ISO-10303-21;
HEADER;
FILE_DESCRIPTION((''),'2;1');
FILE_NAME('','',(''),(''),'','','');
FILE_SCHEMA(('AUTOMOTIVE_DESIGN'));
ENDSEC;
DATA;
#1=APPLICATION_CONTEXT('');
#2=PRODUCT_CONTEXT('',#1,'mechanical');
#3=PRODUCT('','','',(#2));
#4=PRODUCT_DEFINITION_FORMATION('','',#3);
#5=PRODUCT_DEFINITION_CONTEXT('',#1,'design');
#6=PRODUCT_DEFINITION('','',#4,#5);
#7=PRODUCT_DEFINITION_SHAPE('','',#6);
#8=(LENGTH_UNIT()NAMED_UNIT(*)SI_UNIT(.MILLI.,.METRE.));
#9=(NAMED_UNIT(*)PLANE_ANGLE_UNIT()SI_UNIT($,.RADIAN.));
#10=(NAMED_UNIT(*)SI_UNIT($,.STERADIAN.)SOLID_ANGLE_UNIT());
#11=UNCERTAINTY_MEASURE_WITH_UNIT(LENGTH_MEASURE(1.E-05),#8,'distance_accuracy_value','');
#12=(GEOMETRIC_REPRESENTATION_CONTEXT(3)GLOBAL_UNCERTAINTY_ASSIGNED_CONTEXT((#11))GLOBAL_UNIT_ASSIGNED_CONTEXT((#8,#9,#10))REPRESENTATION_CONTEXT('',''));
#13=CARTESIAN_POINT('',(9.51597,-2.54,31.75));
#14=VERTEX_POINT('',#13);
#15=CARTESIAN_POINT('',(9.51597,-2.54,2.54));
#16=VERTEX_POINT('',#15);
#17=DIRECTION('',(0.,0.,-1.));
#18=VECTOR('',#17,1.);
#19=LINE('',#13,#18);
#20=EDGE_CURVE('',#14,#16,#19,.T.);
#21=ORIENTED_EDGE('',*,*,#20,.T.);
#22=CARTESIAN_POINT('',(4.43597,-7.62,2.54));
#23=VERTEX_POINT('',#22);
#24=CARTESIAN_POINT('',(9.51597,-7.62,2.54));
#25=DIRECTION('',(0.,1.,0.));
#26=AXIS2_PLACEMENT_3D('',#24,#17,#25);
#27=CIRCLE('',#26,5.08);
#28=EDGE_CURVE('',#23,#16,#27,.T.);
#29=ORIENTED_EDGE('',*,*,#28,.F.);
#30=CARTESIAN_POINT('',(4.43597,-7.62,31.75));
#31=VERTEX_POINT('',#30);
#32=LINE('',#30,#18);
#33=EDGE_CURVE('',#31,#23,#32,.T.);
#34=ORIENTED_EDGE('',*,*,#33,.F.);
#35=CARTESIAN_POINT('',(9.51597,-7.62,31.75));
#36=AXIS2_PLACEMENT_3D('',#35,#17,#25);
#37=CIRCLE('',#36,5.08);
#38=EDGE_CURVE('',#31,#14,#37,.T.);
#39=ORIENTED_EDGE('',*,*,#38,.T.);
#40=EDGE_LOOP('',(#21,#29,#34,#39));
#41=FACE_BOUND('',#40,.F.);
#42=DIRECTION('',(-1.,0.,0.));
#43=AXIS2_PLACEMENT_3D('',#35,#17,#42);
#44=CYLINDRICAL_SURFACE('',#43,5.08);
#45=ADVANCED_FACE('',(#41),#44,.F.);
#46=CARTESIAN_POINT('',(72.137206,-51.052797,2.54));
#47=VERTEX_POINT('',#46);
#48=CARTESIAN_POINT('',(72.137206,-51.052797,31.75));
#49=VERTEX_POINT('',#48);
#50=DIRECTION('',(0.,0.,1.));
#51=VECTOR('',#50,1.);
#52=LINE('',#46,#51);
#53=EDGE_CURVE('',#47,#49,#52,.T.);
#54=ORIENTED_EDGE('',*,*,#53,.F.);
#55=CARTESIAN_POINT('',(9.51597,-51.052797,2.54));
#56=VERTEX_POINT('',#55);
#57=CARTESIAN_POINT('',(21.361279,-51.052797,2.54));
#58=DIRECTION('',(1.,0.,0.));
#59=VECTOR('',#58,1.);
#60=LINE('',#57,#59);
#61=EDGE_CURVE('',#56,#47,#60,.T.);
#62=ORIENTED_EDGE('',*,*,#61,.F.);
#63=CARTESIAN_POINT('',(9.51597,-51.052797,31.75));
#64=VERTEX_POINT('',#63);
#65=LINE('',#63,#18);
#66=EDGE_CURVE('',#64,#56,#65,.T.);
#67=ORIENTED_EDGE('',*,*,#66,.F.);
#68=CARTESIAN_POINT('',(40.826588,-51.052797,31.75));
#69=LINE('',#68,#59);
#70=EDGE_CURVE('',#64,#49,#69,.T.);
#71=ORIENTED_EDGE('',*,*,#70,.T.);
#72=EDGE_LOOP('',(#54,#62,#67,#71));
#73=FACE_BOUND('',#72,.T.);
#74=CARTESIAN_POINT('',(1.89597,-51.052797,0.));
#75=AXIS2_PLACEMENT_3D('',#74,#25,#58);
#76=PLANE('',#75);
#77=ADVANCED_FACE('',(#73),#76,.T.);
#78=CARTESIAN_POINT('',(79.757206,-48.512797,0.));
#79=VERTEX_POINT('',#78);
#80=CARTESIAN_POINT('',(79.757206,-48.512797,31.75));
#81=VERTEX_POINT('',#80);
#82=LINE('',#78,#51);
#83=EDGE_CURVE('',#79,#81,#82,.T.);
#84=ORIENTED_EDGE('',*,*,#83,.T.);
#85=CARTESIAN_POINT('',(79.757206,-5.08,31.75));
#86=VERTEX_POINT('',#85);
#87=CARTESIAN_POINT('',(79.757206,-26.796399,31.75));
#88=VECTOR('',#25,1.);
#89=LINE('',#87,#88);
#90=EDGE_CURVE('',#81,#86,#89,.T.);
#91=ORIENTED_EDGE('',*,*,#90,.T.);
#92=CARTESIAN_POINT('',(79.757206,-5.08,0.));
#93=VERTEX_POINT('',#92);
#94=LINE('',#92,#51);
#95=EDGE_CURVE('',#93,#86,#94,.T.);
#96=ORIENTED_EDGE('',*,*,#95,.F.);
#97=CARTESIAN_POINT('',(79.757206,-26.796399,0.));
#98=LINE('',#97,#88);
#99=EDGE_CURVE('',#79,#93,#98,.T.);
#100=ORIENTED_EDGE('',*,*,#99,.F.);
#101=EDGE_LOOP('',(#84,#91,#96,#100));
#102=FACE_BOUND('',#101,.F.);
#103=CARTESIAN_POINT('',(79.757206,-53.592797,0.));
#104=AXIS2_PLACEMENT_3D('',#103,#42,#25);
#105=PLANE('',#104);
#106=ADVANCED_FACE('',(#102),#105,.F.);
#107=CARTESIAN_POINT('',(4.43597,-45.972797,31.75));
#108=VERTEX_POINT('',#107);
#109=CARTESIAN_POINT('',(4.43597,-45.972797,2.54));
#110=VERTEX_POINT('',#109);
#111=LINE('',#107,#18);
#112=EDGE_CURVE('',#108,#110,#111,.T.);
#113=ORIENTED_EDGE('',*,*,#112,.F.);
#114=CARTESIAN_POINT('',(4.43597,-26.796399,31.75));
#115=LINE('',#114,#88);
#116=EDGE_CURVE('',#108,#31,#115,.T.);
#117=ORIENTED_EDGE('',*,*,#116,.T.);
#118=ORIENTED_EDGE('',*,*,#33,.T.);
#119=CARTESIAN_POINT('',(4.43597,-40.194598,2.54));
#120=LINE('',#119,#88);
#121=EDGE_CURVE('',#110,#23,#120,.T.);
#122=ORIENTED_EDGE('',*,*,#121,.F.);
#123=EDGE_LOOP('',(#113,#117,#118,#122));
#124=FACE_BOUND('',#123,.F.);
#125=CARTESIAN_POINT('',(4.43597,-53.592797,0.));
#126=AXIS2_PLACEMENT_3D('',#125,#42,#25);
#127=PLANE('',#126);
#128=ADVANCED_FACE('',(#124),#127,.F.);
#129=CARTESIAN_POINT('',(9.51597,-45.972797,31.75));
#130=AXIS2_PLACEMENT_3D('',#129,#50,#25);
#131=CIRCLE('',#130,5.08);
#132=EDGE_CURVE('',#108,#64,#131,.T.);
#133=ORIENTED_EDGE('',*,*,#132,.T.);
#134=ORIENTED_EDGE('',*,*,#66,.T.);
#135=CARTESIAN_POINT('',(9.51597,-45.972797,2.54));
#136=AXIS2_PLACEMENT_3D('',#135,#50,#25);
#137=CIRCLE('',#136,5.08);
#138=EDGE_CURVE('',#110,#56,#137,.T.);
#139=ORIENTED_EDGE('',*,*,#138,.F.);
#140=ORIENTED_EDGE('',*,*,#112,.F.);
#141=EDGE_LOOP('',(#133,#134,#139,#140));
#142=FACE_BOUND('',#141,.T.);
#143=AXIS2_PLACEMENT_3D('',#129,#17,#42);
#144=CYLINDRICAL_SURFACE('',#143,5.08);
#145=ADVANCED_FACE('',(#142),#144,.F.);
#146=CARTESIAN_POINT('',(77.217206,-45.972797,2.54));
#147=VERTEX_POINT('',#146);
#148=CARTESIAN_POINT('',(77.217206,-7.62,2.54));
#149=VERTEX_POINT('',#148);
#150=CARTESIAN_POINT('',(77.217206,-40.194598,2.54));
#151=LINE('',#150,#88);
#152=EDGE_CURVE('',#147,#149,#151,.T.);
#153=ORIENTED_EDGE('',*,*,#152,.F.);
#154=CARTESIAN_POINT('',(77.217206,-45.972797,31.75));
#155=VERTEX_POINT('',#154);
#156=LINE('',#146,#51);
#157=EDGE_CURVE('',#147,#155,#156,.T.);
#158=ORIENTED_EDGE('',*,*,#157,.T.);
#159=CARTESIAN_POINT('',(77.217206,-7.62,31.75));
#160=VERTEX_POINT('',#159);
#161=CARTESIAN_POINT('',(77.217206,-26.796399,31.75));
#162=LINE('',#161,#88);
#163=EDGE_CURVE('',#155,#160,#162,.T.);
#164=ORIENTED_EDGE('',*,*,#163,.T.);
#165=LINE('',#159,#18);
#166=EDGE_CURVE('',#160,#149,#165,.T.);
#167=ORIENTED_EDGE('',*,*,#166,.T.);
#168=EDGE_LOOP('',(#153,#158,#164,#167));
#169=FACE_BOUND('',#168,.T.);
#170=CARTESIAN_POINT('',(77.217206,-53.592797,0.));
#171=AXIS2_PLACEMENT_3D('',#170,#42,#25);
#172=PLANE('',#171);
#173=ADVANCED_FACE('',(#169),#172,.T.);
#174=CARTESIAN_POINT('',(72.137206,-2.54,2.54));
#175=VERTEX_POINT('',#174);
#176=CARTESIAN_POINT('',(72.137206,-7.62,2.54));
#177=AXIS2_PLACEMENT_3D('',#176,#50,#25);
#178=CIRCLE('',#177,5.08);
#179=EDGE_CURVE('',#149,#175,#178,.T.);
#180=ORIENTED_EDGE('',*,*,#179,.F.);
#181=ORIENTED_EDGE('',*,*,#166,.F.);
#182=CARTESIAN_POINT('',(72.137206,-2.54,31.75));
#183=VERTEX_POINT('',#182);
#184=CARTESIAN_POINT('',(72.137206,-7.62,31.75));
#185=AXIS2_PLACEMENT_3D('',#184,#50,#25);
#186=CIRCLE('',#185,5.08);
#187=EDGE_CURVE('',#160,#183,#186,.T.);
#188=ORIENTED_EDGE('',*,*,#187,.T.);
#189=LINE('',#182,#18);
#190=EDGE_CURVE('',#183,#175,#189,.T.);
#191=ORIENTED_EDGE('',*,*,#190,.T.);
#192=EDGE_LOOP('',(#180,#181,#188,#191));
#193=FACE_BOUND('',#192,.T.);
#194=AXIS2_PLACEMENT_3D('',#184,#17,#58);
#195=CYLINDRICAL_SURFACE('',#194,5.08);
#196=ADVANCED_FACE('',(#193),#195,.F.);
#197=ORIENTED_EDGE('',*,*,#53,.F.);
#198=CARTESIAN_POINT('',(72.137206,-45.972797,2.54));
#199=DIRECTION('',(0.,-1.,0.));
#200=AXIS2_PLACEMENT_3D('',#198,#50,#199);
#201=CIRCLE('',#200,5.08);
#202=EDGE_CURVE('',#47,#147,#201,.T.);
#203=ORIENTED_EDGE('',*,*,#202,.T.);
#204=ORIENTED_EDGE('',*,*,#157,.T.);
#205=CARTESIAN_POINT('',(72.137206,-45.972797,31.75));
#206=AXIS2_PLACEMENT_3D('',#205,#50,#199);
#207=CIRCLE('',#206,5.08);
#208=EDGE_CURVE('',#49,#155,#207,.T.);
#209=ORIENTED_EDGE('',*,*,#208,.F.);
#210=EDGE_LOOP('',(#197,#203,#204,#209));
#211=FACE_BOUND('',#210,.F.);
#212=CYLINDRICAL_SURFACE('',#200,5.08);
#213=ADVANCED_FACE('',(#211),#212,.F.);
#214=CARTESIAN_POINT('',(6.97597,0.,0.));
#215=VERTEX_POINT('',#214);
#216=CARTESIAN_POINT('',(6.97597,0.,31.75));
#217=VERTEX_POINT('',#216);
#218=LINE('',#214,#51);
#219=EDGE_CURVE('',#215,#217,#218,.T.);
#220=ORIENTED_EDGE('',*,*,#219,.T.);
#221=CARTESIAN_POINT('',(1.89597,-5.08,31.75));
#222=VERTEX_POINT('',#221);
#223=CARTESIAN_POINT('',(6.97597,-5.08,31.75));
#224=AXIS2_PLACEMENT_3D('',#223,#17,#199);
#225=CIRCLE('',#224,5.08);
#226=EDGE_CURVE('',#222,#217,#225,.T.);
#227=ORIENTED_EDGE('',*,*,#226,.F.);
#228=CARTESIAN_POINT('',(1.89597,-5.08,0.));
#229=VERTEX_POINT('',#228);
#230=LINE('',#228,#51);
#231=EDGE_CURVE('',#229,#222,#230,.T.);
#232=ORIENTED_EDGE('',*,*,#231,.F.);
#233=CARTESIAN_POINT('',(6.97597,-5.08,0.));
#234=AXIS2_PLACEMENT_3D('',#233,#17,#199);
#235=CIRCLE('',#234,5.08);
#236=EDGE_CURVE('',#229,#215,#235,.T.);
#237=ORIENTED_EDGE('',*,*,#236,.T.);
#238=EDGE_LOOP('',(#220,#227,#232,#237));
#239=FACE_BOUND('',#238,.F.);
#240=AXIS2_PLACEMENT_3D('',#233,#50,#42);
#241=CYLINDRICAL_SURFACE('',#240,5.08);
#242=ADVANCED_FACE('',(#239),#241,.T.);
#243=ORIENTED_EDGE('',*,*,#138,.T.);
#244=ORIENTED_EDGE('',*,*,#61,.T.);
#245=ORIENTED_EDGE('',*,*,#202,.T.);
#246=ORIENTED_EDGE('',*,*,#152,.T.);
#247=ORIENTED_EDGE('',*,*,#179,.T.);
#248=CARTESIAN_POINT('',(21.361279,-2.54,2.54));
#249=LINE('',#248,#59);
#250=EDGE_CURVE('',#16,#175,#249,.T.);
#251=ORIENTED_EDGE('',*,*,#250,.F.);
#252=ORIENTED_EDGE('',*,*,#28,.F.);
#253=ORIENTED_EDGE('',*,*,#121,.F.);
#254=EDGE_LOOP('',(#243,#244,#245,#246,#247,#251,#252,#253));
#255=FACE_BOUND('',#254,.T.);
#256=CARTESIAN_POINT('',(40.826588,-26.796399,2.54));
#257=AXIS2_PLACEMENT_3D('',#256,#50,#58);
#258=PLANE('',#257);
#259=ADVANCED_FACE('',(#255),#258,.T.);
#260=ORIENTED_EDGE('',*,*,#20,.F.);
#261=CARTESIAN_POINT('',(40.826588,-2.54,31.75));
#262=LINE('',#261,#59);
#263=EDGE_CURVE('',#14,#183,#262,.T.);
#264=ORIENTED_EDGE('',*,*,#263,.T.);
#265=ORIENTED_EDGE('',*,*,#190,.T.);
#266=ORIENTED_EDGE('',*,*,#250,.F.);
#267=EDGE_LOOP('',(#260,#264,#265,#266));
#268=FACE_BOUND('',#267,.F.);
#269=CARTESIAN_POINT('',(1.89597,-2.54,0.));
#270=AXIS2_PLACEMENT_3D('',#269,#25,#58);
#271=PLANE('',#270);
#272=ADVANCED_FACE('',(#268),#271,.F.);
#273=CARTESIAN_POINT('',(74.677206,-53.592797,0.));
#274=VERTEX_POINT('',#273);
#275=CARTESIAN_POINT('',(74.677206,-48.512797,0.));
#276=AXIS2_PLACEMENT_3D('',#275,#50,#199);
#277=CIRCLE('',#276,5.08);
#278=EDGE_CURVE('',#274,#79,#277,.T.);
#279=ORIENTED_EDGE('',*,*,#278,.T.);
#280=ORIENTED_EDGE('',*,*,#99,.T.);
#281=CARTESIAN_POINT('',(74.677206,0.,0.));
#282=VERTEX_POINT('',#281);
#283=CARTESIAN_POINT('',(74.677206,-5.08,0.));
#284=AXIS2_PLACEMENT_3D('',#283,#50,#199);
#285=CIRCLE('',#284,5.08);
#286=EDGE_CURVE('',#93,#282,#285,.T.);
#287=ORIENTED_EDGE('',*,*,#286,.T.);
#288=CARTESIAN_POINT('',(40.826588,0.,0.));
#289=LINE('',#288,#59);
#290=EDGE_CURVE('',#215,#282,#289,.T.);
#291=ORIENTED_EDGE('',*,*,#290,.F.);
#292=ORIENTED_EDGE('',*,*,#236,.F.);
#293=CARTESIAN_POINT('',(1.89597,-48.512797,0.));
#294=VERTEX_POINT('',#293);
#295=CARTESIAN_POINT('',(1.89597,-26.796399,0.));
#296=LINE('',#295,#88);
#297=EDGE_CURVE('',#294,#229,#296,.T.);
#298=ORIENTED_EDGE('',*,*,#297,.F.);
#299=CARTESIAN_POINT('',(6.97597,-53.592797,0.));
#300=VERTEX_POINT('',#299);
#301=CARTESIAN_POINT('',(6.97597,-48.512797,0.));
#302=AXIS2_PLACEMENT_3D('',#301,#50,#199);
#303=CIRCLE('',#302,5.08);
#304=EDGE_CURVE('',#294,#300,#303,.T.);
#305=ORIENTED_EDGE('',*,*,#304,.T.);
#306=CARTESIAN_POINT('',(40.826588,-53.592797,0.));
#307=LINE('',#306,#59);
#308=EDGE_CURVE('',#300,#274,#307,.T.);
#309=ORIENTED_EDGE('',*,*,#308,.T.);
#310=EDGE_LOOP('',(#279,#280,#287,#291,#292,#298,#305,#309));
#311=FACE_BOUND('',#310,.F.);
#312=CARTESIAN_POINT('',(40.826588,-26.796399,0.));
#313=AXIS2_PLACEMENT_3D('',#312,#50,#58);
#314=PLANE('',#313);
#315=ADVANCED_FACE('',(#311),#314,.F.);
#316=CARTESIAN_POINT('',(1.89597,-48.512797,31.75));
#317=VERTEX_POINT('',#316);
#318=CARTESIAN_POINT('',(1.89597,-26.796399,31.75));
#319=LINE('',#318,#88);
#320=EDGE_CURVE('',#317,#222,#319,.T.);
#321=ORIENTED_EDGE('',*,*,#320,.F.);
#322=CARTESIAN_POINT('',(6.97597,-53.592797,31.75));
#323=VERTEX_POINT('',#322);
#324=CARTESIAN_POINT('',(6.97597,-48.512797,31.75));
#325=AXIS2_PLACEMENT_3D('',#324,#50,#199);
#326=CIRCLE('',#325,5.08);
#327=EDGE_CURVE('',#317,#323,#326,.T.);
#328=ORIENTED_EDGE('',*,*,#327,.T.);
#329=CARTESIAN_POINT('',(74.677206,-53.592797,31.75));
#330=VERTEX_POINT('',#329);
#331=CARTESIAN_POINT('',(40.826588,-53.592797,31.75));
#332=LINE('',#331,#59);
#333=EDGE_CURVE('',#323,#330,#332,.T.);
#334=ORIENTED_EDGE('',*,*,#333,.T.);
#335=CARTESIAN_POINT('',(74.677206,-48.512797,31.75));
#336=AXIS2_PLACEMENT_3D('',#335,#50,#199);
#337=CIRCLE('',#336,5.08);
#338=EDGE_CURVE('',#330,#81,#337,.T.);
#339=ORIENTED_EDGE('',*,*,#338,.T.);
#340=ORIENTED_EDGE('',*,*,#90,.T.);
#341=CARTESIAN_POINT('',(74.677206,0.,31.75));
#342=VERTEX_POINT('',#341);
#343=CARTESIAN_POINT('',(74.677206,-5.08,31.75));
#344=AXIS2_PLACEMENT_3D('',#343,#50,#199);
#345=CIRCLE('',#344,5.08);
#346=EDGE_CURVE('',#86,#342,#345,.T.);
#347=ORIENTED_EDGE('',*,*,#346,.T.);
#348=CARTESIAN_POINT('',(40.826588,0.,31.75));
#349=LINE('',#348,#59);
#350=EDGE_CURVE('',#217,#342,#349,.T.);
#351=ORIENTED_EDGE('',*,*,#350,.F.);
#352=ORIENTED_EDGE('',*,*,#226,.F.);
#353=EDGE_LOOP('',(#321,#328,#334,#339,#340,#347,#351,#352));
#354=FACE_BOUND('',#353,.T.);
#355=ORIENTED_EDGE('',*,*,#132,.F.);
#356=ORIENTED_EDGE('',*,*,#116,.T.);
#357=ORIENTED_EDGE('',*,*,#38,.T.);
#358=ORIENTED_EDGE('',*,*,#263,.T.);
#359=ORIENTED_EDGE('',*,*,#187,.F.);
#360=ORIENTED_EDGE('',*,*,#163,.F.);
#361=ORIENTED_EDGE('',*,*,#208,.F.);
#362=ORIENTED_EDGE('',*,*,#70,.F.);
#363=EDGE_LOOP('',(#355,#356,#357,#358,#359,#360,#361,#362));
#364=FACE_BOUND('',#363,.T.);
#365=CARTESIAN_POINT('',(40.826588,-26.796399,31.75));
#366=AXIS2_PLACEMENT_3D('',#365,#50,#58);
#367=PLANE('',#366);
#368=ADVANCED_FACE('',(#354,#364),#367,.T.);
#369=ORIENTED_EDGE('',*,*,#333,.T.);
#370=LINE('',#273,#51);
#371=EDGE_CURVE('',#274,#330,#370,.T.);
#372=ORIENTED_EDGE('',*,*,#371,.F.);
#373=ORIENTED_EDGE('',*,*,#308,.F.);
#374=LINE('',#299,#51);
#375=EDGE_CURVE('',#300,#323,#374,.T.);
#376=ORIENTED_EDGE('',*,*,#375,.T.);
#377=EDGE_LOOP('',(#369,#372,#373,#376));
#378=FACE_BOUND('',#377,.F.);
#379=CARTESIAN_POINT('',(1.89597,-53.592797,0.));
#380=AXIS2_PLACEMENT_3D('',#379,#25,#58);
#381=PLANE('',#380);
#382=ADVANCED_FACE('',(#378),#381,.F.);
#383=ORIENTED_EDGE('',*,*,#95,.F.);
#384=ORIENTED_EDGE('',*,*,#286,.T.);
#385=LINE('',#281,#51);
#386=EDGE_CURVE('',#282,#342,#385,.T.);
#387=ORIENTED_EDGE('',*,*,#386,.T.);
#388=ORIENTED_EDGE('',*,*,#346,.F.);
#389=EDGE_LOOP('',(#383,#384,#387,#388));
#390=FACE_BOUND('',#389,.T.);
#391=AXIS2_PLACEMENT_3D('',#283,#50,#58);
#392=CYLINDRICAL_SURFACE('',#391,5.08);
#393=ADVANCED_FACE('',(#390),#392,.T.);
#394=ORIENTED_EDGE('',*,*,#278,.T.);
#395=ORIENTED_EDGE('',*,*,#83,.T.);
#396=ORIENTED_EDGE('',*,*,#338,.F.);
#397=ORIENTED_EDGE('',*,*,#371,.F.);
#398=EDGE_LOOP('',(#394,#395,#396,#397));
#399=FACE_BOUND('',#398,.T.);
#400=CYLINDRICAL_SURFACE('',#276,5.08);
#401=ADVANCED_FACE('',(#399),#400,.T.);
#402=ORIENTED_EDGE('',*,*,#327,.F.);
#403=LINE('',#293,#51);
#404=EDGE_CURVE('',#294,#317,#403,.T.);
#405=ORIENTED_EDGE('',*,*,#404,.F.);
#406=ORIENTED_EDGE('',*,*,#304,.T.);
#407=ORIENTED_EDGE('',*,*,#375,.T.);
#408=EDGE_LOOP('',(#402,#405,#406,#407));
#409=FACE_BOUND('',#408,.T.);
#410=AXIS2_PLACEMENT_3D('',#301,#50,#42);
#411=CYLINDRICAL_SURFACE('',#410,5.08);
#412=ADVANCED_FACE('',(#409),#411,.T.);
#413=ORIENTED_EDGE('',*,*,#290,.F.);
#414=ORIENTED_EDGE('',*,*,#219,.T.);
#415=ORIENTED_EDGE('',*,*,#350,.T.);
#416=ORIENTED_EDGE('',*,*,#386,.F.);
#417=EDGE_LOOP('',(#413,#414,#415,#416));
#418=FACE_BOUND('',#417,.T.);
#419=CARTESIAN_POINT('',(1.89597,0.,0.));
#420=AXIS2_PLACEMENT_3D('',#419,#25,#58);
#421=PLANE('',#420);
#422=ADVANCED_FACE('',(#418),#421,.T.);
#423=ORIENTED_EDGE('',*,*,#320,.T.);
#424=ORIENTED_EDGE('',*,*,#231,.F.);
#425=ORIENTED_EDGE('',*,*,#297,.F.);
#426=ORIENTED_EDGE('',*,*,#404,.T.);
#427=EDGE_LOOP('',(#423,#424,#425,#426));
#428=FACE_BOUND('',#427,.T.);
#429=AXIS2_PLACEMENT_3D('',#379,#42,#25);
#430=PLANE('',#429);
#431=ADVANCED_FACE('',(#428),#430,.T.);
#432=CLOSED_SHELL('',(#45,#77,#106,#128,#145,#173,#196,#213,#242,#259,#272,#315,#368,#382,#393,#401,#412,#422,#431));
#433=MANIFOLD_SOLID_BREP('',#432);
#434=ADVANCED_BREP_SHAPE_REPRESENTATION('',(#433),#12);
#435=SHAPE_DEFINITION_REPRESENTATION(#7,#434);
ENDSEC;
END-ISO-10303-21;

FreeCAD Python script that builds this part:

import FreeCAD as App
import Part
import Sketcher
Q = App.Units.Quantity


def edges_at(feature, points):
    """Names of the edges that pass closest to the given points."""
    edges = feature.Shape.Edges
    near = lambda p: min(range(len(edges)), key=lambda i: edges[i].distToShape(Part.Vertex(*p))[0])
    return sorted({f"Edge{near(p) + 1}" for p in points})


def faces_at(feature, points):
    """Names of the faces that lie closest to the given points."""
    faces = feature.Shape.Faces
    near = lambda p: min(range(len(faces)), key=lambda i: faces[i].distToShape(Part.Vertex(*p))[0])
    return sorted({f"Face{near(p) + 1}" for p in points})

doc = App.newDocument("Part")
body = doc.addObject("PartDesign::Body", "Body")

# Sketch on XY plane
sketch1 = body.newObject("Sketcher::SketchObject", "Sketch")
sketch1.AttachmentSupport = (doc.getObject("XY_Plane"), [""])
sketch1.MapMode = "FlatFace"
sketch1.addGeometry(Part.LineSegment(App.Vector(1.89597, 0, 0), App.Vector(1.89597, -53.592797, 0)), False)
sketch1.addGeometry(Part.LineSegment(App.Vector(1.89597, -53.592797, 0), App.Vector(79.757206, -53.592797, 0)), False)
sketch1.addGeometry(Part.LineSegment(App.Vector(79.757206, -53.592797, 0), App.Vector(79.757206, 0, 0)), False)
sketch1.addGeometry(Part.LineSegment(App.Vector(79.757206, 0, 0), App.Vector(1.89597, 0, 0)), False)
sketch1.addConstraint(Sketcher.Constraint("Coincident", 0, 2, 1, 1))
sketch1.addConstraint(Sketcher.Constraint("Coincident", 1, 2, 2, 1))
sketch1.addConstraint(Sketcher.Constraint("Coincident", 2, 2, 3, 1))
sketch1.addConstraint(Sketcher.Constraint("Coincident", 3, 2, 0, 1))
sketch1.addConstraint(Sketcher.Constraint("Vertical", 0))
sketch1.addConstraint(Sketcher.Constraint("Horizontal", 1))
sketch1.addConstraint(Sketcher.Constraint("Vertical", 2))
sketch1.addConstraint(Sketcher.Constraint("Horizontal", 3))
sketch1.addConstraint(Sketcher.Constraint("PointOnObject", 2, 2, -1))
sketch1.addConstraint(Sketcher.Constraint("DistanceX", 1, 1, 1, 2, 77.861236))
sketch1.addConstraint(Sketcher.Constraint("DistanceY", 0, 2, 0, 1, 53.592797))
sketch1.addConstraint(Sketcher.Constraint("DistanceX", -1, 1, 0, 2, 1.89597))
pad1 = body.newObject("PartDesign::Pad", "Pad")
pad1.Profile = sketch1
pad1.Length = Q("1.25 in")
doc.recompute()

thickness = body.newObject("PartDesign::Thickness", "Thickness")
thickness.Base = (pad1, faces_at(pad1, [(40.827, -26.796, 31.75)]))
thickness.Value = Q("0.1 in")
thickness.Reversed = True
thickness.Join = "Arc"
doc.recompute()

fillet = body.newObject("PartDesign::Fillet", "Fillet")
fillet.Base = (thickness, edges_at(thickness, [
    (1.896, 0, 15.875),
    (79.757, 0, 15.875),
    (79.757, -53.593, 15.875),
    (1.896, -53.593, 15.875),
    (4.436, -51.053, 17.145),
    (4.436, -2.54, 17.145),
    (77.217, -2.54, 17.145),
    (77.217, -51.053, 17.145),
]))
fillet.Radius = Q("0.2 in")

doc.recompute()
